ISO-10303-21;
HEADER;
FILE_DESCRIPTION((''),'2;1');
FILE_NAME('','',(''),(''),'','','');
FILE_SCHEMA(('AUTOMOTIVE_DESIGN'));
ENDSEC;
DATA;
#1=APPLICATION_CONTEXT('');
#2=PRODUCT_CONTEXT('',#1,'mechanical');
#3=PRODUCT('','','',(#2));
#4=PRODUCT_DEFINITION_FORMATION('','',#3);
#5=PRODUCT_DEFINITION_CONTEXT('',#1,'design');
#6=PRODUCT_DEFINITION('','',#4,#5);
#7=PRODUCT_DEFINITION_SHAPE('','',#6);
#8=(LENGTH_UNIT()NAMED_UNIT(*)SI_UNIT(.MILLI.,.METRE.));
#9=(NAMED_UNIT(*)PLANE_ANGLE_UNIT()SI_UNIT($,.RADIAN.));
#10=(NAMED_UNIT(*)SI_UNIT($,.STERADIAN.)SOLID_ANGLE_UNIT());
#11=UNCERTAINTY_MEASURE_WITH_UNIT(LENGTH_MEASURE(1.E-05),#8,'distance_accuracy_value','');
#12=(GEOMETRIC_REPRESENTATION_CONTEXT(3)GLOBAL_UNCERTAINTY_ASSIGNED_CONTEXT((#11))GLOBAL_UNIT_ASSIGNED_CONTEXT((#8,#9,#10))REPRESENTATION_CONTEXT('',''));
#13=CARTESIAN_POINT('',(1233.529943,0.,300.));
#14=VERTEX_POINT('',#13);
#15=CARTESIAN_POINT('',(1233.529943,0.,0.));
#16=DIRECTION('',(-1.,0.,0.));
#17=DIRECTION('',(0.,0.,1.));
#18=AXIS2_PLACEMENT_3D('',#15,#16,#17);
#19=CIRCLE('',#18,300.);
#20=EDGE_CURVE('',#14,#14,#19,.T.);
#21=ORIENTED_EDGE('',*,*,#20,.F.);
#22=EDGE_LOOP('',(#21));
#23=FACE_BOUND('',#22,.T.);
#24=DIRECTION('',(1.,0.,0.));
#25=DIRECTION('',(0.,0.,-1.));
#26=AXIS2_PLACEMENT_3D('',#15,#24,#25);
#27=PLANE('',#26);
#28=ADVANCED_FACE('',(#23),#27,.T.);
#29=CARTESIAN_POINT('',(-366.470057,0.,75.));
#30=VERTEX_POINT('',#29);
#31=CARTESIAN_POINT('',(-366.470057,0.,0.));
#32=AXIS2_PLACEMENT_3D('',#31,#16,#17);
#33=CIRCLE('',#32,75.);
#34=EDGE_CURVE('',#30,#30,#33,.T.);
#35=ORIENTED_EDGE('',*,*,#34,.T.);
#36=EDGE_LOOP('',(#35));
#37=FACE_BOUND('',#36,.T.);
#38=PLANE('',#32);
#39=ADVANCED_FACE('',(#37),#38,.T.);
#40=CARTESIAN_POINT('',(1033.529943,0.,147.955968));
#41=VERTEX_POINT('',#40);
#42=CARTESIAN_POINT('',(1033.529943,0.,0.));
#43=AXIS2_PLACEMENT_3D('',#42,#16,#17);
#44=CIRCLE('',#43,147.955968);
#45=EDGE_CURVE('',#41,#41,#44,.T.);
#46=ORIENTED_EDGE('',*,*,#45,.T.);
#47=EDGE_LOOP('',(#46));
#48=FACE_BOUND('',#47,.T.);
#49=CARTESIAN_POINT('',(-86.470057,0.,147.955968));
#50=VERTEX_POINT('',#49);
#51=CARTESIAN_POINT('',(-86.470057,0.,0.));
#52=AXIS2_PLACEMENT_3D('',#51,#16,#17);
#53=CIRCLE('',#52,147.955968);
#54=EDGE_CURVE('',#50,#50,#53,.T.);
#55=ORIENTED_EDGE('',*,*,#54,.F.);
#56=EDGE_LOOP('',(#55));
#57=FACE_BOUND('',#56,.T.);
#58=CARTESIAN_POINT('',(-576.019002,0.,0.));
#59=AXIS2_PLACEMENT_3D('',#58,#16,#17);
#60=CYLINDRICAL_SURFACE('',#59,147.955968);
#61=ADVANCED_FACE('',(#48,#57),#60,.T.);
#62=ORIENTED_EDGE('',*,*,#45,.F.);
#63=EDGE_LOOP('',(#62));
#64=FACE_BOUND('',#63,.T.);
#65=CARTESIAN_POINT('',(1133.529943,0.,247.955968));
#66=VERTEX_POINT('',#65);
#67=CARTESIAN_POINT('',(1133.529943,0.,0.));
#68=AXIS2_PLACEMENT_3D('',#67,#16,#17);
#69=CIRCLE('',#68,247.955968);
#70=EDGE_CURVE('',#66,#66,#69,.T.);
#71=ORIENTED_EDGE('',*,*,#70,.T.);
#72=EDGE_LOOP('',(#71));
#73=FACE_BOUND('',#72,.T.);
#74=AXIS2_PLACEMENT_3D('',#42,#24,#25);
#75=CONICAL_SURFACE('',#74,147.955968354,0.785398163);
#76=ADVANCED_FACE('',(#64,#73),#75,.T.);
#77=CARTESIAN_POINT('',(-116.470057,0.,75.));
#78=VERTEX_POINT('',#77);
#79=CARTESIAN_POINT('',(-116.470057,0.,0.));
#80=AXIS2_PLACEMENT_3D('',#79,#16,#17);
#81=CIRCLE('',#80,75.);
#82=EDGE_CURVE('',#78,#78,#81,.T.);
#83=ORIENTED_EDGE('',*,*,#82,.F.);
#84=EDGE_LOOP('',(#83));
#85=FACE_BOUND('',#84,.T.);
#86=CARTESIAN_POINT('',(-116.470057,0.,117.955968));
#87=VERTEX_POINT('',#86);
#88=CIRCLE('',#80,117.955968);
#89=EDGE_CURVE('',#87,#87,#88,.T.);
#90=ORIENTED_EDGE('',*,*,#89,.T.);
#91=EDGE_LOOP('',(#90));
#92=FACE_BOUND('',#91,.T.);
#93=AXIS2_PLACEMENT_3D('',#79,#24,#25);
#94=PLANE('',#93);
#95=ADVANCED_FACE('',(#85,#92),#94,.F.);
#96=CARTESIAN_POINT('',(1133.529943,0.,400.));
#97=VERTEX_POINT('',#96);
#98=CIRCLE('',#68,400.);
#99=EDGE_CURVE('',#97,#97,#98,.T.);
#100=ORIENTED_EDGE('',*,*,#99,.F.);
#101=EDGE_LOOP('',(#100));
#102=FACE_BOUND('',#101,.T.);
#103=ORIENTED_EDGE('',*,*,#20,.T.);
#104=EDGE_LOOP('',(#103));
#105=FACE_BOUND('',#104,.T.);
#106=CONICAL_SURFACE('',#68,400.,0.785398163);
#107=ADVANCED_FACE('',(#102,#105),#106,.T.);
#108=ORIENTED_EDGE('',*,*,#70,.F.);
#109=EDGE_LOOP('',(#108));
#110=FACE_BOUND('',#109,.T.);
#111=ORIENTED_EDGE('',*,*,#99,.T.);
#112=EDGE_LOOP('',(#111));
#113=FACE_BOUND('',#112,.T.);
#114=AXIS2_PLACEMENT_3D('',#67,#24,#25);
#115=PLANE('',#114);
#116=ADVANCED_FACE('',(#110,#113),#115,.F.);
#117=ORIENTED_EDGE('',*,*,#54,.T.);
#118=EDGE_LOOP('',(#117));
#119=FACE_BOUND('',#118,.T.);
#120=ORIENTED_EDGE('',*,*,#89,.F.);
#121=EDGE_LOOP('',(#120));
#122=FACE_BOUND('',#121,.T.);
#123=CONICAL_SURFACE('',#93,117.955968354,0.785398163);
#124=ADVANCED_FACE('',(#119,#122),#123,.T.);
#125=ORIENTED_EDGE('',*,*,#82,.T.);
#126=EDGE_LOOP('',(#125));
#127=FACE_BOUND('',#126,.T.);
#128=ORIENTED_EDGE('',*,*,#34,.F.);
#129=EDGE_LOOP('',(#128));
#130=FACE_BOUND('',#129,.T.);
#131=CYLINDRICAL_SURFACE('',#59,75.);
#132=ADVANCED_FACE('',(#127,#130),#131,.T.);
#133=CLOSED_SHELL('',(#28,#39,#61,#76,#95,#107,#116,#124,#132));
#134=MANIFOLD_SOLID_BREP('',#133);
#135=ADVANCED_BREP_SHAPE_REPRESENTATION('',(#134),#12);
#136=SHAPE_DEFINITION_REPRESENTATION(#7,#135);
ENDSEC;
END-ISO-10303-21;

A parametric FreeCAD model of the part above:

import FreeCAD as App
import Part
import Sketcher
Q = App.Units.Quantity


def add_polygon(sketch, points):
    """Adds a closed chain of lines whose ends are joined by coincident constraints."""
    first, n = sketch.GeometryCount, len(points)
    for a, b in zip(points, points[1:] + points[:1]):
        sketch.addGeometry(Part.LineSegment(App.Vector(*a, 0), App.Vector(*b, 0)), False)
    for i in range(n):
        sketch.addConstraint(Sketcher.Constraint("Coincident", first + i, 2, first + (i + 1) % n, 1))

doc = App.newDocument("Part")
body = doc.addObject("PartDesign::Body", "Body")

# Sketch on XY plane
sketch1 = body.newObject("Sketcher::SketchObject", "Sketch")
sketch1.AttachmentSupport = (doc.getObject("XY_Plane"), [""])
sketch1.MapMode = "FlatFace"
add_polygon(sketch1, [(-86.470057, -147.955968), (1033.529943, -147.955968), (1133.529943, -247.955968), (1133.529943, -400), (1233.529943, -300), (1233.529943, 0), (-366.470057, 0), (-366.470057, -75), (-116.470057, -75), (-116.470057, -117.955968)])  # lines 0-9
sketch1.addConstraint(Sketcher.Constraint("Horizontal", 0))
sketch1.addConstraint(Sketcher.Constraint("Vertical", 2))
sketch1.addConstraint(Sketcher.Constraint("Vertical", 4))
sketch1.addConstraint(Sketcher.Constraint("Horizontal", 5))
sketch1.addConstraint(Sketcher.Constraint("Vertical", 6))
sketch1.addConstraint(Sketcher.Constraint("Horizontal", 7))
sketch1.addConstraint(Sketcher.Constraint("Vertical", 8))
sketch1.addConstraint(Sketcher.Constraint("PointOnObject", 4, 2, -1))
sketch1.addConstraint(Sketcher.Constraint("Perpendicular", 1, 3))
sketch1.addConstraint(Sketcher.Constraint("Perpendicular", 3, 9))
sketch1.addConstraint(Sketcher.Constraint("Equal", 1, 3))
sketch1.addConstraint(Sketcher.Constraint("DistanceX", 0, 1, 0, 2, Q("1120 mm")))
sketch1.addConstraint(Sketcher.Constraint("DistanceX", 5, 2, 5, 1, Q("1600 mm")))
sketch1.addConstraint(Sketcher.Constraint("DistanceX", 7, 1, 7, 2, Q("250 mm")))
sketch1.addConstraint(Sketcher.Constraint("DistanceY", 4, 1, 4, 2, Q("300 mm")))
sketch1.addConstraint(Sketcher.Constraint("DistanceY", 6, 2, 6, 1, Q("75 mm")))
sketch1.addConstraint(Sketcher.Constraint("Angle", 1, Q("-45 deg")))
sketch1.addConstraint(Sketcher.Constraint("DistanceY", 2, 2, -1, 1, Q("400 mm")))
sketch1.addConstraint(Sketcher.Constraint("DistanceY", 2, 2, 2, 1, Q("152.044032 mm")))
sketch1.addConstraint(Sketcher.Constraint("DistanceX", -1, 1, 0, 2, Q("1033.529943 mm")))
revolution = body.newObject("PartDesign::Revolution", "Revolution")
revolution.Profile = sketch1
revolution.ReferenceAxis = (sketch1, ["H_Axis"])
revolution.Angle = 360

doc.recompute()
